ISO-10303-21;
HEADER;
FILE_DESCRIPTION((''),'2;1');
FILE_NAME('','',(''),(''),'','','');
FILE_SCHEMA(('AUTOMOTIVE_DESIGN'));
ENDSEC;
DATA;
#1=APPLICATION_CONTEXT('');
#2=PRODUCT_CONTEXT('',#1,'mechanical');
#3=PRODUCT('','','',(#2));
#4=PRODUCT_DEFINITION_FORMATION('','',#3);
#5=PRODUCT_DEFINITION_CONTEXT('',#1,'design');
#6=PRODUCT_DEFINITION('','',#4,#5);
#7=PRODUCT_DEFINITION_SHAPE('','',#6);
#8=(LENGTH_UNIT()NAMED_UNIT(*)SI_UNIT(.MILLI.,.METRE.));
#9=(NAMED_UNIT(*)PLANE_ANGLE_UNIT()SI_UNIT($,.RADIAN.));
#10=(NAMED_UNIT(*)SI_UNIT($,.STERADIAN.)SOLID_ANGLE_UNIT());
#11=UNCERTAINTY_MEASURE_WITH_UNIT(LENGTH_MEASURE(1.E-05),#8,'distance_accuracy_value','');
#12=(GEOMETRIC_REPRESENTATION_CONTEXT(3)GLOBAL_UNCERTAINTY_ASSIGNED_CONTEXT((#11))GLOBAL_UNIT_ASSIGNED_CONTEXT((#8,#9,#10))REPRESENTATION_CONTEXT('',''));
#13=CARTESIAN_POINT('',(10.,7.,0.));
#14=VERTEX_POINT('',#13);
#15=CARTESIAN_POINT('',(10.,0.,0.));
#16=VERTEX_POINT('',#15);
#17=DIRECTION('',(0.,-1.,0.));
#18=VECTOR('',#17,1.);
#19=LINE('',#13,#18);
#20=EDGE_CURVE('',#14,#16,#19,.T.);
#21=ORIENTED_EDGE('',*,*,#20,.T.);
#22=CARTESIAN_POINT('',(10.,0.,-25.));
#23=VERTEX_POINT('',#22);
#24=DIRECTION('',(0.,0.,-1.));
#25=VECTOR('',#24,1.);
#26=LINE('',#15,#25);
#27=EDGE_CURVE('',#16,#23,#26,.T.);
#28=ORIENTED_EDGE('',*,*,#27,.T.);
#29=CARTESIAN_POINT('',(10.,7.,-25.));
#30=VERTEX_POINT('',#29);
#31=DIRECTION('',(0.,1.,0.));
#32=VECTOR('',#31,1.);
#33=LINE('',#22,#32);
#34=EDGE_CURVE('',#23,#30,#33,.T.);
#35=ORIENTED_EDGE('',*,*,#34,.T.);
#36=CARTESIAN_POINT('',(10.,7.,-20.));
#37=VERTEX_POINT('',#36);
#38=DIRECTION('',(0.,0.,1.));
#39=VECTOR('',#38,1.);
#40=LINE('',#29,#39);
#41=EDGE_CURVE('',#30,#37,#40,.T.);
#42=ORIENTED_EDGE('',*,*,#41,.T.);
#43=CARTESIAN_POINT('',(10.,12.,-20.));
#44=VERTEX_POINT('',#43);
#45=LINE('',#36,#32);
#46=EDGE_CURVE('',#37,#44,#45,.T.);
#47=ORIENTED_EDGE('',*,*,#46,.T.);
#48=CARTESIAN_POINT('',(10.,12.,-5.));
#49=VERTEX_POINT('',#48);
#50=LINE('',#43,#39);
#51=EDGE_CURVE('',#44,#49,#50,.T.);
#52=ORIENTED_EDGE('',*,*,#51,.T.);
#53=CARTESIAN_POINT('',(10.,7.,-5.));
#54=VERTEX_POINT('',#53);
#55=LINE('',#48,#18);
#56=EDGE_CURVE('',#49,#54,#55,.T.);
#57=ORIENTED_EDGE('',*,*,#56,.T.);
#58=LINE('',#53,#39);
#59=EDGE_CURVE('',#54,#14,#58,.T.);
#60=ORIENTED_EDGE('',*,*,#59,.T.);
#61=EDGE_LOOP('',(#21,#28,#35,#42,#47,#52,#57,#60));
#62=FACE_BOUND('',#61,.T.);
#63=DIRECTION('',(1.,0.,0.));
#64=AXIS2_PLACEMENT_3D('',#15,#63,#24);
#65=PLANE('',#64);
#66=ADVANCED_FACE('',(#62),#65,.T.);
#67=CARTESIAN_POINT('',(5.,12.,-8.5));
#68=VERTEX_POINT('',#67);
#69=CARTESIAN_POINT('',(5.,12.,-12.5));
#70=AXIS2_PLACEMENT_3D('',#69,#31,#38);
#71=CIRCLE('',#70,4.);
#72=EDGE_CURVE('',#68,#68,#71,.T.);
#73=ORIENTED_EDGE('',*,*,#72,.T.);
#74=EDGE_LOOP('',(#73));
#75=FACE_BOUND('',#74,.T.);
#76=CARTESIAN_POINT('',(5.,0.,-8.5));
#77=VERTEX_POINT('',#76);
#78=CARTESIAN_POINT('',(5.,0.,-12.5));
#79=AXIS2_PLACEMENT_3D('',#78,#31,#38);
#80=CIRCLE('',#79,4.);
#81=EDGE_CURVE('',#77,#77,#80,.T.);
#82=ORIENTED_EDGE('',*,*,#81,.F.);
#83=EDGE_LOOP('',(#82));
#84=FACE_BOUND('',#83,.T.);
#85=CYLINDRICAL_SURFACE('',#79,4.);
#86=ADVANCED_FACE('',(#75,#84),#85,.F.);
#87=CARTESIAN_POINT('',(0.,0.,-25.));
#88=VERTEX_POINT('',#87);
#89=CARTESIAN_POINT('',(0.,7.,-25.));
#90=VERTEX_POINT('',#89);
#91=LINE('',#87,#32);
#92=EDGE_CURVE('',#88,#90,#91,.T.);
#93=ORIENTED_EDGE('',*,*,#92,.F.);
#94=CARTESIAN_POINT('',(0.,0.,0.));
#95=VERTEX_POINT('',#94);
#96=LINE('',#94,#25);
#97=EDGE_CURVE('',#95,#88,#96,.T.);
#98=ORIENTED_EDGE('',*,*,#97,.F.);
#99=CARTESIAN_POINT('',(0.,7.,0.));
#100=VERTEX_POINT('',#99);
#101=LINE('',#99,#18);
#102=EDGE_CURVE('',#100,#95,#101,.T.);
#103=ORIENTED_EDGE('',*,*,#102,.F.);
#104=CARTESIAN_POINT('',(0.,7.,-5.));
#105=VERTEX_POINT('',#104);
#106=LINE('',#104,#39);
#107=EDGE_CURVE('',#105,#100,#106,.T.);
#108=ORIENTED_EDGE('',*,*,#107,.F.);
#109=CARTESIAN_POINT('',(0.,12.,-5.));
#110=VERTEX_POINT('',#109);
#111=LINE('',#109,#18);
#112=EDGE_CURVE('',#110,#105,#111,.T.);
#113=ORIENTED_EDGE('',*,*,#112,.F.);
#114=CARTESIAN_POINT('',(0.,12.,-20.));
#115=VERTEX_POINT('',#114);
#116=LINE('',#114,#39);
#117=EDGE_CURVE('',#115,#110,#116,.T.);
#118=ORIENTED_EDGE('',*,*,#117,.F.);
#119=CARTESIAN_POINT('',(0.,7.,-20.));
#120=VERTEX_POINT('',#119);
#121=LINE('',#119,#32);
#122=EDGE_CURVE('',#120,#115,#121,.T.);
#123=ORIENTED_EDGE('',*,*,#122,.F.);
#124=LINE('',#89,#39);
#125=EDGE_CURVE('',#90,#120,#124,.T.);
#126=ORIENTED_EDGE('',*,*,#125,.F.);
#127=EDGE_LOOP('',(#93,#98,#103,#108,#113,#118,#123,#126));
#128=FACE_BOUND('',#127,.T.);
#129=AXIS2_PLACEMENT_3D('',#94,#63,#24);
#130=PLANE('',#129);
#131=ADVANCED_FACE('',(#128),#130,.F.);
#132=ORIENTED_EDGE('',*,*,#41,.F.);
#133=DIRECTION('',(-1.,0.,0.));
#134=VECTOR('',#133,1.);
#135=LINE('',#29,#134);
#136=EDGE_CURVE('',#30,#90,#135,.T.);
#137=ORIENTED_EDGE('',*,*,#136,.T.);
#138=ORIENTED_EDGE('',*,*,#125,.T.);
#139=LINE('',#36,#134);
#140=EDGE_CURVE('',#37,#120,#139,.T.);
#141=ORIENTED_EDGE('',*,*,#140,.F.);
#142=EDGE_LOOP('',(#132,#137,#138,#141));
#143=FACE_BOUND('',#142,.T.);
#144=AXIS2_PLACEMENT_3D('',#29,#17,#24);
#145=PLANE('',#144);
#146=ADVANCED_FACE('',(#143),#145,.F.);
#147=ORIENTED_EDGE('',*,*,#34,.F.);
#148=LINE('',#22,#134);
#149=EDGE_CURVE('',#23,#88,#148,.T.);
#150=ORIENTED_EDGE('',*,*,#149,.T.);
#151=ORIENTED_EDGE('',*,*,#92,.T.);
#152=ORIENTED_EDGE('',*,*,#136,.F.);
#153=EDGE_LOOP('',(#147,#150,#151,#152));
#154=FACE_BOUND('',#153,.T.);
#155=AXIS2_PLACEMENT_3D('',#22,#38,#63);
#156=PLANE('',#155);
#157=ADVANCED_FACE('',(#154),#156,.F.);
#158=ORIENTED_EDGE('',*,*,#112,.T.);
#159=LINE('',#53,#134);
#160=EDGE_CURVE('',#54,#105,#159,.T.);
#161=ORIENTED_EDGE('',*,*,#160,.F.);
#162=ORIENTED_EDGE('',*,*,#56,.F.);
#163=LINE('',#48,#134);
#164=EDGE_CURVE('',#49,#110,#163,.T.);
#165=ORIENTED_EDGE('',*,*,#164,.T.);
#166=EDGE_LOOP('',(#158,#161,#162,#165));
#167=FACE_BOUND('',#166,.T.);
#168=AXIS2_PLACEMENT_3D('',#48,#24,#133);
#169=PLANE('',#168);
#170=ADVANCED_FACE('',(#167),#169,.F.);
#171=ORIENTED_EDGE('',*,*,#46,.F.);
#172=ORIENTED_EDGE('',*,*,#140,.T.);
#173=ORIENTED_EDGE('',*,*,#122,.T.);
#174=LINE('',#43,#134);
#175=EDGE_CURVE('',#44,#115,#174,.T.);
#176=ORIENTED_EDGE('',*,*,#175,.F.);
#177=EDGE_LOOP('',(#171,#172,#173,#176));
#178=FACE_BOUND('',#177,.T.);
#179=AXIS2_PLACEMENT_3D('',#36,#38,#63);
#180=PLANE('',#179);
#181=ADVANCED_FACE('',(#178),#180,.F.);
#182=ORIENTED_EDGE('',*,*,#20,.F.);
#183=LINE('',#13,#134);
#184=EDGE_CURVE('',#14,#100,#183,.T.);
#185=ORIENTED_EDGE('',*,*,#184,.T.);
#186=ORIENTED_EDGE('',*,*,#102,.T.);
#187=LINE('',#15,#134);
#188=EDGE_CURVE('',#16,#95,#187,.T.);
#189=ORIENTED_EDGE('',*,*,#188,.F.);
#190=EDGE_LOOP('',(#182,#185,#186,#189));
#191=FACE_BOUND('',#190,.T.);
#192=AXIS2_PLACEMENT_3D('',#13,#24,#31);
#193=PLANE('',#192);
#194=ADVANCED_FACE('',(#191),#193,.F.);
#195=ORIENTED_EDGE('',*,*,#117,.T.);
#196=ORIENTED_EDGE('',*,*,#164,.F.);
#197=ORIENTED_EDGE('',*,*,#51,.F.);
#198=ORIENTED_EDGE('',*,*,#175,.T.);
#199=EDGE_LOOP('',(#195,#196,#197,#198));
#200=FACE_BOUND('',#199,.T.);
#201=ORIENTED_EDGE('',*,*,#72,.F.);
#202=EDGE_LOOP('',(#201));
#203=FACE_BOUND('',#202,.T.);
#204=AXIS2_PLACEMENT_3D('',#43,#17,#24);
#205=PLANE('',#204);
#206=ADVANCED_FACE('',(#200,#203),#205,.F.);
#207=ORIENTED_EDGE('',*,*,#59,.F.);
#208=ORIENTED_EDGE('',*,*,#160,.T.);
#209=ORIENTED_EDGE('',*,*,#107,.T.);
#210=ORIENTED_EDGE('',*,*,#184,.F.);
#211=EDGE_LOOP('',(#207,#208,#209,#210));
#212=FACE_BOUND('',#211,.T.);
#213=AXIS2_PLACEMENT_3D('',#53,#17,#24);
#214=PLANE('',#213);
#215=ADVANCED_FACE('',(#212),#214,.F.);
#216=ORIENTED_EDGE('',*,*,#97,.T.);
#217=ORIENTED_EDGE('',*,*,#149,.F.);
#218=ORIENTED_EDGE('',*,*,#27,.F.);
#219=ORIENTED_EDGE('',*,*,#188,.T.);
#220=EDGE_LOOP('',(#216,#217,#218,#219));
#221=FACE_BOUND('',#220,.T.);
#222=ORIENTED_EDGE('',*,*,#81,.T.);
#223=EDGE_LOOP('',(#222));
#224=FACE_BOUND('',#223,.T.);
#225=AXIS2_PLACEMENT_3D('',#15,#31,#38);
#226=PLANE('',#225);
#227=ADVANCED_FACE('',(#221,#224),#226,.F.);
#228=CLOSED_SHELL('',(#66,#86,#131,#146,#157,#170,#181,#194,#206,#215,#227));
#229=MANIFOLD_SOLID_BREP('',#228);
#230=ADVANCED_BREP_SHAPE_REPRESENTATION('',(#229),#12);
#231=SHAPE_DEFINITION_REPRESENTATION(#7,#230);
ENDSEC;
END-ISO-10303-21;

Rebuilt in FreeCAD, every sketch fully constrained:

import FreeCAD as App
import Part
import Sketcher


def add_polygon(sketch, points):
    """Adds a closed chain of lines whose ends are joined by coincident constraints."""
    first, n = sketch.GeometryCount, len(points)
    for a, b in zip(points, points[1:] + points[:1]):
        sketch.addGeometry(Part.LineSegment(App.Vector(*a, 0), App.Vector(*b, 0)), False)
    for i in range(n):
        sketch.addConstraint(Sketcher.Constraint("Coincident", first + i, 2, first + (i + 1) % n, 1))

doc = App.newDocument("Part")
params = doc.addObject("Spreadsheet::Sheet", "Params")
for row, (alias, value) in enumerate([
    ("sketch1_width", "7 mm"),
    ("sketch1_width2", "5 mm"),
    ("sketch1_height", "25 mm"),
    ("pad1_length", "10 mm"),
    ("sketch2_diameter", "8 mm"),
], start=1):
    params.set(f"A{row}", alias)
    params.set(f"B{row}", "=" + value)
    params.setAlias(f"B{row}", alias)

body = doc.addObject("PartDesign::Body", "Body")

sketch1 = doc.addObject("Sketcher::SketchObject", "Sketch")
body.addObject(sketch1)
sketch1.AttachmentSupport = (doc.YZ_Plane, [""])
sketch1.MapMode = "FlatFace"
add_polygon(sketch1, [(0, 0), (0, -25), (7, -25), (7, -20), (12, -20), (12, -5), (7, -5), (7, 0)])
sketch1.addConstraint([
    Sketcher.Constraint("Vertical", 0),
    Sketcher.Constraint("Horizontal", 1),
    Sketcher.Constraint("Vertical", 2),
    Sketcher.Constraint("Horizontal", 3),
    Sketcher.Constraint("Vertical", 4),
    Sketcher.Constraint("Horizontal", 5),
    Sketcher.Constraint("Vertical", 6),
    Sketcher.Constraint("Horizontal", 7),
    Sketcher.Constraint("Coincident", 7, 2, -1, 1),
    Sketcher.Constraint("Vertical", 2, 2, 5, 2),
    Sketcher.Constraint("Equal", 5, 2),
    Sketcher.Constraint("Equal", 2, 6),
    Sketcher.Constraint("DistanceX", 1, 1, 1, 2, 7.0),
    Sketcher.Constraint("DistanceX", 3, 1, 3, 2, 5.0),
    Sketcher.Constraint("DistanceY", 0, 2, 0, 1, 25.0),
])
sketch1.setExpression("Constraints[20]", "Params.sketch1_width")
sketch1.setExpression("Constraints[21]", "Params.sketch1_width2")
sketch1.setExpression("Constraints[22]", "Params.sketch1_height")
pad1 = doc.addObject("PartDesign::Pad", "Pad")
body.addObject(pad1)
pad1.Profile = sketch1
pad1.setExpression("Length", "Params.pad1_length")

sketch2 = doc.addObject("Sketcher::SketchObject", "Sketch001")
body.addObject(sketch2)
sketch2.AttachmentSupport = (doc.XZ_Plane, [""])
sketch2.MapMode = "FlatFace"
sketch2.AttachmentOffset = App.Placement(App.Vector(0, 0, -12), App.Rotation())
sketch2.addGeometry(Part.Circle(App.Vector(5, -12.5, 0), App.Vector(0, 0, 1), 4), False)
sketch2.addConstraint([
    Sketcher.Constraint("Diameter", 0, 8.0),
    Sketcher.Constraint("DistanceX", -1, 1, 0, 3, 5.0),
    Sketcher.Constraint("DistanceY", 0, 3, -1, 1, 12.5),
])
sketch2.setExpression("Constraints[0]", "Params.sketch2_diameter")
pocket1 = doc.addObject("PartDesign::Pocket", "Pocket")
body.addObject(pocket1)
pocket1.Profile = sketch2
pocket1.Type = "ThroughAll"
pocket1.Reversed = True

doc.recompute()
